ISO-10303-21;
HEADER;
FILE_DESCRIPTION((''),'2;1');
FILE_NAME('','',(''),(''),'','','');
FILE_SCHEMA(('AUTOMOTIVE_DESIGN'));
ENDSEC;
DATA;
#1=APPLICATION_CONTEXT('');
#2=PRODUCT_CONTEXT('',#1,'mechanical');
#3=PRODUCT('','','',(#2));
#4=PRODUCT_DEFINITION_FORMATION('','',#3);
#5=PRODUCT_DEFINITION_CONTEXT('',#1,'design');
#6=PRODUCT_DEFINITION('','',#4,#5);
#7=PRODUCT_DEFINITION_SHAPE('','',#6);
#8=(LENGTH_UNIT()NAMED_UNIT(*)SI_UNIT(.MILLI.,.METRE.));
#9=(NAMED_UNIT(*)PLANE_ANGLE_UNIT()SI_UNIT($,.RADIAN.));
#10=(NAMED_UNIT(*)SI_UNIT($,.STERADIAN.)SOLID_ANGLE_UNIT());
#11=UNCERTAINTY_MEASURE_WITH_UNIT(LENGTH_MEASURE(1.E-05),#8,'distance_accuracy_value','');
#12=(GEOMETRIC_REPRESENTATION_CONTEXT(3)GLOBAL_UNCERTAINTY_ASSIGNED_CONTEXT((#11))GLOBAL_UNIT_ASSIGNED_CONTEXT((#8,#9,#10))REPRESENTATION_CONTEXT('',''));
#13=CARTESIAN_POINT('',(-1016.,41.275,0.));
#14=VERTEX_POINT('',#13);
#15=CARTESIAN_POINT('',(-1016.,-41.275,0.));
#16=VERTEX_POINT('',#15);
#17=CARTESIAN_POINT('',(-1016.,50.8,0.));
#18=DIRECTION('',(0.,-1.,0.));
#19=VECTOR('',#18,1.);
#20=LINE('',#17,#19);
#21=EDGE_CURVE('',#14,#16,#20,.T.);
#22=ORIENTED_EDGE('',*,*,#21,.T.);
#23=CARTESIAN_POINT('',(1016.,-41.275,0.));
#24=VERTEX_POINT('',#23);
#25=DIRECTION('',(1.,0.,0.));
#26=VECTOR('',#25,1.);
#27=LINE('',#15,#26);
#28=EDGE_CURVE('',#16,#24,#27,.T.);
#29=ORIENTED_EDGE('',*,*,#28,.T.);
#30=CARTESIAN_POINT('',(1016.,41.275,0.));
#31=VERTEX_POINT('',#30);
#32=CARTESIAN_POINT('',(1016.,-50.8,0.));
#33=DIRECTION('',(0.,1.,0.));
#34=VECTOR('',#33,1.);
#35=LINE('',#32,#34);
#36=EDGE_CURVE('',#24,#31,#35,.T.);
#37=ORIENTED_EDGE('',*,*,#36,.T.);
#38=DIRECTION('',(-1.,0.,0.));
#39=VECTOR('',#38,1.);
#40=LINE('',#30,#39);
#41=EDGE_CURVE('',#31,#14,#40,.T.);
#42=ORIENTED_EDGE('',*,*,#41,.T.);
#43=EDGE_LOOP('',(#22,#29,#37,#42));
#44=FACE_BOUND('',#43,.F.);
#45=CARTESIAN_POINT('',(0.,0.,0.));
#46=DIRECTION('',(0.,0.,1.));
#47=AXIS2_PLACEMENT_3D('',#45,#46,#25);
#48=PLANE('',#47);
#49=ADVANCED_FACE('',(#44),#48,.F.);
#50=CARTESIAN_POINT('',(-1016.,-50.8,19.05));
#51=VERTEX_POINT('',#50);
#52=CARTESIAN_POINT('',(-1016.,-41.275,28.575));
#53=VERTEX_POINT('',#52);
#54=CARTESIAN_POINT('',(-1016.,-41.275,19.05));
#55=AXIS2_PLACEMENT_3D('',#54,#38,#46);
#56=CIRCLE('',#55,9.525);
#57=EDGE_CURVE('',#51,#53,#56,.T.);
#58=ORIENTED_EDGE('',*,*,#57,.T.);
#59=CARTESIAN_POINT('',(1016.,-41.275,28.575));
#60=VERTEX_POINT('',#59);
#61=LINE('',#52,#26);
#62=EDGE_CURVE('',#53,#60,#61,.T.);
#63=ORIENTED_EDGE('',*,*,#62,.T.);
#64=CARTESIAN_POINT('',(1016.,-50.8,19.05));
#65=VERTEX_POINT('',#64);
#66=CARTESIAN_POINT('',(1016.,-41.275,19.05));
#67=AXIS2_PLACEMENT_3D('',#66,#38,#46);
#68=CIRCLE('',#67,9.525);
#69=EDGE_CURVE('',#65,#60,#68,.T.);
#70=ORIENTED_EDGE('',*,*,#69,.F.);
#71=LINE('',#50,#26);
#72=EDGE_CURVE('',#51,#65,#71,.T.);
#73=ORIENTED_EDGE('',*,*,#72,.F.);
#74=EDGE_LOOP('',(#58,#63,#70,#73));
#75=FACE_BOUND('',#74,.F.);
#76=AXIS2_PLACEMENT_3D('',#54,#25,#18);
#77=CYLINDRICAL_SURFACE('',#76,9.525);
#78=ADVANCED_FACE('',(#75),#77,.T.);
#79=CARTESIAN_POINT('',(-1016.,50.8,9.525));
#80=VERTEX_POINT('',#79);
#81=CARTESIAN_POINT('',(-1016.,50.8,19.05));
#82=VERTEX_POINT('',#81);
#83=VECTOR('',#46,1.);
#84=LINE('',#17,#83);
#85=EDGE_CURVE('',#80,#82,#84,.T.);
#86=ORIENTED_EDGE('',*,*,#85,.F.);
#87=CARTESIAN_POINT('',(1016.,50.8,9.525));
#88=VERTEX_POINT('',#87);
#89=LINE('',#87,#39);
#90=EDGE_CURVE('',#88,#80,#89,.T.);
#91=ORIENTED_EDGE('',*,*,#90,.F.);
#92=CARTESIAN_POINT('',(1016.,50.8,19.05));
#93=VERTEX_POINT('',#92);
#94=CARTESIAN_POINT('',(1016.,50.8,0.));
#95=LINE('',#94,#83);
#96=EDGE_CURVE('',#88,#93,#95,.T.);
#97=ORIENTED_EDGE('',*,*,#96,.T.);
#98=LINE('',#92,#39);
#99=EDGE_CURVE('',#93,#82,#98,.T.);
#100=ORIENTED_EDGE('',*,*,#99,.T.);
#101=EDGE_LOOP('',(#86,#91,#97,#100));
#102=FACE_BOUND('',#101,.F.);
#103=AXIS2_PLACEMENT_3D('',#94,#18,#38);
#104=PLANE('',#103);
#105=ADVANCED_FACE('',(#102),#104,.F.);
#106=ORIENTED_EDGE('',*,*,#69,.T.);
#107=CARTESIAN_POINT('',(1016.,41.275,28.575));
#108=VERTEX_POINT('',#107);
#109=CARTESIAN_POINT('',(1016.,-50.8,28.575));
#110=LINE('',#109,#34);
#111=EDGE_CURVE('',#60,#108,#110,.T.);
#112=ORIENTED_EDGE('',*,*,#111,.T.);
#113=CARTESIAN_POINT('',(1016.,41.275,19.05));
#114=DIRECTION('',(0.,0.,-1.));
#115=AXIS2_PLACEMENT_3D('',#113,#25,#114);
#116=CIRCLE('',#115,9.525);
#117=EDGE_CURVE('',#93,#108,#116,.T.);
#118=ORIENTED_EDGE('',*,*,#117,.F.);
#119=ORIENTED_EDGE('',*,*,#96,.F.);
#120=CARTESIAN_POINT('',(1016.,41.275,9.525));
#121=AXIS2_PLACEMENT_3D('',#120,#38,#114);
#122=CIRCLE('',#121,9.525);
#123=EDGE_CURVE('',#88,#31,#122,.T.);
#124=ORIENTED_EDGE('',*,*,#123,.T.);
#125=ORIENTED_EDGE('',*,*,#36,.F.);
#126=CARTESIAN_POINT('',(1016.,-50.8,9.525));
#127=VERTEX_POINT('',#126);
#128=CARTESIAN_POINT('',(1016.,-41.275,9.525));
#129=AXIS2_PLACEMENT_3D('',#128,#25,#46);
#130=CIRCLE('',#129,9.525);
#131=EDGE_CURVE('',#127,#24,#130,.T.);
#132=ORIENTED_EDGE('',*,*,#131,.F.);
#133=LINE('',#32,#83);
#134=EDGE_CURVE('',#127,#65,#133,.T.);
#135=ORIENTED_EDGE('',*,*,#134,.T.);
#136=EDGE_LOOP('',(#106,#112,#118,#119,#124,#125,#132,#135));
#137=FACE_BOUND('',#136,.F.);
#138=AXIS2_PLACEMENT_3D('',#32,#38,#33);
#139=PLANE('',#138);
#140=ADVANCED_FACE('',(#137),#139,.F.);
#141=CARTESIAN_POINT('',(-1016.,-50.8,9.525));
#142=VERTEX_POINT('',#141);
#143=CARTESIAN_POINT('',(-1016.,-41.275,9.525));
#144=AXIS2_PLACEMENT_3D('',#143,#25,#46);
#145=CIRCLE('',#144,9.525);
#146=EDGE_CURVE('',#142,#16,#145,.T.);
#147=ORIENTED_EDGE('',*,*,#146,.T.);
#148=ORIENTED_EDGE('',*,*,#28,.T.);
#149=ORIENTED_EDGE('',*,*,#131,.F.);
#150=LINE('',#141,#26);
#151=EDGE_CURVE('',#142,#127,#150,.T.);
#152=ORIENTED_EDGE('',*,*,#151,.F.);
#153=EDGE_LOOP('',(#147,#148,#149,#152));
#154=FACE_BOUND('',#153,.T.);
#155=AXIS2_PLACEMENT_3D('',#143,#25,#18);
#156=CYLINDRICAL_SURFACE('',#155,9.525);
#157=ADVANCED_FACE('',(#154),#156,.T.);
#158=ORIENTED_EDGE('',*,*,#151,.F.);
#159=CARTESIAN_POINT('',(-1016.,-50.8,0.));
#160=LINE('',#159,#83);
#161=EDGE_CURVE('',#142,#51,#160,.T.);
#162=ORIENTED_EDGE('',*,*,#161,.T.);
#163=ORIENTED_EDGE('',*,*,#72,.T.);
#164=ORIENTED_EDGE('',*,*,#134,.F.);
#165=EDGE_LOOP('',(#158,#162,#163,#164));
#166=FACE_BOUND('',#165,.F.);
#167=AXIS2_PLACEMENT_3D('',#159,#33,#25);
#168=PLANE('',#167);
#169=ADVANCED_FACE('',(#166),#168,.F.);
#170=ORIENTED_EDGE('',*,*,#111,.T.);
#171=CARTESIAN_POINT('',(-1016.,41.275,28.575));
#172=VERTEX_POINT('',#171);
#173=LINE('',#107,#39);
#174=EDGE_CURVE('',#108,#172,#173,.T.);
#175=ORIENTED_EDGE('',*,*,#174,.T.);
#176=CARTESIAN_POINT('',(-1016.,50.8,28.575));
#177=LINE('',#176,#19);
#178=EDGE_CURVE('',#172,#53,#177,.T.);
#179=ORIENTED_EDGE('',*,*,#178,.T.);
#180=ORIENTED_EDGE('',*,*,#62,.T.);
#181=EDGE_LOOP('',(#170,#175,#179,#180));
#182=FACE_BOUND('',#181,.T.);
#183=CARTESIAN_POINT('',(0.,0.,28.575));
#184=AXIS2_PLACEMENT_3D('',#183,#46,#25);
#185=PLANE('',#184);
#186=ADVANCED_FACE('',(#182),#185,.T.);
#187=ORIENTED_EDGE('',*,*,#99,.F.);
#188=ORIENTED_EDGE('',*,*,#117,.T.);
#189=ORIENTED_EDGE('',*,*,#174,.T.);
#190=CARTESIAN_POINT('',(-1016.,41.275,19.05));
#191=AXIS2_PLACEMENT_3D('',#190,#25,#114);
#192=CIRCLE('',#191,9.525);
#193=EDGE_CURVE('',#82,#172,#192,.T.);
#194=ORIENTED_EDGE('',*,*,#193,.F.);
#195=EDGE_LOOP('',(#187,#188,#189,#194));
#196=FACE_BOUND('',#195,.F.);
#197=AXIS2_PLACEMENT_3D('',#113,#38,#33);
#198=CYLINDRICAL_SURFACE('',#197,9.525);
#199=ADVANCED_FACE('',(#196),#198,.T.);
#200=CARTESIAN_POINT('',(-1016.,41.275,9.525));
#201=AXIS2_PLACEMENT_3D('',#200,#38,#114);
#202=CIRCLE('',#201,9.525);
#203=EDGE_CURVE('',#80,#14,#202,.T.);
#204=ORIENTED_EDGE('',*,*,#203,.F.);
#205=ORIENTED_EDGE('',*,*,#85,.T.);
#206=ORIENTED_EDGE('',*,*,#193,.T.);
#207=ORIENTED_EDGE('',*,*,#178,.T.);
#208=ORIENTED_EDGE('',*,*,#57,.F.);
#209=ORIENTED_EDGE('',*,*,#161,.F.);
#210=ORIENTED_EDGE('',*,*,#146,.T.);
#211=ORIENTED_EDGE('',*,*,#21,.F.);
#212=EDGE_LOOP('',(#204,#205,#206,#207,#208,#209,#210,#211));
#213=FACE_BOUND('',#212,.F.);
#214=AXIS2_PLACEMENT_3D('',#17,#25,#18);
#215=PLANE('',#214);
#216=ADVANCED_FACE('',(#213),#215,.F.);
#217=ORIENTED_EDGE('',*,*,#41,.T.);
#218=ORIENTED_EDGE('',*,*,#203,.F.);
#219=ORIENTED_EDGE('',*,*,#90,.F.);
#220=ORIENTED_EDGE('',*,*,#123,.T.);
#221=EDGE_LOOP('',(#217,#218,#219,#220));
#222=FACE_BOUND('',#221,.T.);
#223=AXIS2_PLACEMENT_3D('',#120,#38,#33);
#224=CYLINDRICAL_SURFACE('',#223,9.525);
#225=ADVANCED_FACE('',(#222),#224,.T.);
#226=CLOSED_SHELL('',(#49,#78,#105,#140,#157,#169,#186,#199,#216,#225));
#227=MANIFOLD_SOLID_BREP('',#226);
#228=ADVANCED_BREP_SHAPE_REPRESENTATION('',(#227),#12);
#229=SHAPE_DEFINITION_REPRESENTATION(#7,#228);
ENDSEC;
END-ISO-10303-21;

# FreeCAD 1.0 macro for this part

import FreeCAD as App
import Part
import Sketcher

V = App.Vector
Q = App.Units.Quantity


def edges_at(feature, points):
    """Names of the edges that pass closest to the given points."""
    edges = feature.Shape.Edges
    near = lambda p: min(range(len(edges)), key=lambda i: edges[i].distToShape(Part.Vertex(*p))[0])
    return sorted({f"Edge{near(p) + 1}" for p in points})


def add_polygon(sketch, points):
    """Adds a closed chain of lines whose ends are joined by coincident constraints."""
    first, n = sketch.GeometryCount, len(points)
    for a, b in zip(points, points[1:] + points[:1]):
        sketch.addGeometry(Part.LineSegment(App.Vector(*a, 0), App.Vector(*b, 0)), False)
    for i in range(n):
        sketch.addConstraint(Sketcher.Constraint("Coincident", first + i, 2, first + (i + 1) % n, 1))

doc = App.newDocument("Part")
body = doc.addObject("PartDesign::Body", "Body")

# Sketch on XY plane
sketch1 = body.newObject("Sketcher::SketchObject", "Sketch")
sketch1.AttachmentSupport = (doc.getObject("XY_Plane"), [""])
sketch1.MapMode = "FlatFace"
add_polygon(sketch1, [(-1016, 51), (-1016, -51), (1016, -51), (1016, 51)])  # lines 0-3
sketch1.addConstraint([
    Sketcher.Constraint("Vertical", 0),
    Sketcher.Constraint("Horizontal", 1),
    Sketcher.Constraint("Vertical", 2),
    Sketcher.Constraint("Horizontal", 3),
    Sketcher.Constraint("Symmetric", 0, 2, 2, 2, -1, 1),
    Sketcher.Constraint("DistanceX", 1, 1, 1, 2, Q("80 in")),
    Sketcher.Constraint("DistanceY", 0, 2, 0, 1, Q("4 in")),
])
pad1 = body.newObject("PartDesign::Pad", "Pad")
pad1.Profile = sketch1
pad1.Length = Q("1.125 in")
doc.recompute()

fillet = body.newObject("PartDesign::Fillet", "Fillet")
fillet.Base = (pad1, edges_at(pad1, [
    (0, 50.8, 0),
    (0, 50.8, 28.575),
    (0, -50.8, 0),
    (0, -50.8, 28.575),
]))
fillet.Radius = Q("0.375 in")

doc.recompute()
